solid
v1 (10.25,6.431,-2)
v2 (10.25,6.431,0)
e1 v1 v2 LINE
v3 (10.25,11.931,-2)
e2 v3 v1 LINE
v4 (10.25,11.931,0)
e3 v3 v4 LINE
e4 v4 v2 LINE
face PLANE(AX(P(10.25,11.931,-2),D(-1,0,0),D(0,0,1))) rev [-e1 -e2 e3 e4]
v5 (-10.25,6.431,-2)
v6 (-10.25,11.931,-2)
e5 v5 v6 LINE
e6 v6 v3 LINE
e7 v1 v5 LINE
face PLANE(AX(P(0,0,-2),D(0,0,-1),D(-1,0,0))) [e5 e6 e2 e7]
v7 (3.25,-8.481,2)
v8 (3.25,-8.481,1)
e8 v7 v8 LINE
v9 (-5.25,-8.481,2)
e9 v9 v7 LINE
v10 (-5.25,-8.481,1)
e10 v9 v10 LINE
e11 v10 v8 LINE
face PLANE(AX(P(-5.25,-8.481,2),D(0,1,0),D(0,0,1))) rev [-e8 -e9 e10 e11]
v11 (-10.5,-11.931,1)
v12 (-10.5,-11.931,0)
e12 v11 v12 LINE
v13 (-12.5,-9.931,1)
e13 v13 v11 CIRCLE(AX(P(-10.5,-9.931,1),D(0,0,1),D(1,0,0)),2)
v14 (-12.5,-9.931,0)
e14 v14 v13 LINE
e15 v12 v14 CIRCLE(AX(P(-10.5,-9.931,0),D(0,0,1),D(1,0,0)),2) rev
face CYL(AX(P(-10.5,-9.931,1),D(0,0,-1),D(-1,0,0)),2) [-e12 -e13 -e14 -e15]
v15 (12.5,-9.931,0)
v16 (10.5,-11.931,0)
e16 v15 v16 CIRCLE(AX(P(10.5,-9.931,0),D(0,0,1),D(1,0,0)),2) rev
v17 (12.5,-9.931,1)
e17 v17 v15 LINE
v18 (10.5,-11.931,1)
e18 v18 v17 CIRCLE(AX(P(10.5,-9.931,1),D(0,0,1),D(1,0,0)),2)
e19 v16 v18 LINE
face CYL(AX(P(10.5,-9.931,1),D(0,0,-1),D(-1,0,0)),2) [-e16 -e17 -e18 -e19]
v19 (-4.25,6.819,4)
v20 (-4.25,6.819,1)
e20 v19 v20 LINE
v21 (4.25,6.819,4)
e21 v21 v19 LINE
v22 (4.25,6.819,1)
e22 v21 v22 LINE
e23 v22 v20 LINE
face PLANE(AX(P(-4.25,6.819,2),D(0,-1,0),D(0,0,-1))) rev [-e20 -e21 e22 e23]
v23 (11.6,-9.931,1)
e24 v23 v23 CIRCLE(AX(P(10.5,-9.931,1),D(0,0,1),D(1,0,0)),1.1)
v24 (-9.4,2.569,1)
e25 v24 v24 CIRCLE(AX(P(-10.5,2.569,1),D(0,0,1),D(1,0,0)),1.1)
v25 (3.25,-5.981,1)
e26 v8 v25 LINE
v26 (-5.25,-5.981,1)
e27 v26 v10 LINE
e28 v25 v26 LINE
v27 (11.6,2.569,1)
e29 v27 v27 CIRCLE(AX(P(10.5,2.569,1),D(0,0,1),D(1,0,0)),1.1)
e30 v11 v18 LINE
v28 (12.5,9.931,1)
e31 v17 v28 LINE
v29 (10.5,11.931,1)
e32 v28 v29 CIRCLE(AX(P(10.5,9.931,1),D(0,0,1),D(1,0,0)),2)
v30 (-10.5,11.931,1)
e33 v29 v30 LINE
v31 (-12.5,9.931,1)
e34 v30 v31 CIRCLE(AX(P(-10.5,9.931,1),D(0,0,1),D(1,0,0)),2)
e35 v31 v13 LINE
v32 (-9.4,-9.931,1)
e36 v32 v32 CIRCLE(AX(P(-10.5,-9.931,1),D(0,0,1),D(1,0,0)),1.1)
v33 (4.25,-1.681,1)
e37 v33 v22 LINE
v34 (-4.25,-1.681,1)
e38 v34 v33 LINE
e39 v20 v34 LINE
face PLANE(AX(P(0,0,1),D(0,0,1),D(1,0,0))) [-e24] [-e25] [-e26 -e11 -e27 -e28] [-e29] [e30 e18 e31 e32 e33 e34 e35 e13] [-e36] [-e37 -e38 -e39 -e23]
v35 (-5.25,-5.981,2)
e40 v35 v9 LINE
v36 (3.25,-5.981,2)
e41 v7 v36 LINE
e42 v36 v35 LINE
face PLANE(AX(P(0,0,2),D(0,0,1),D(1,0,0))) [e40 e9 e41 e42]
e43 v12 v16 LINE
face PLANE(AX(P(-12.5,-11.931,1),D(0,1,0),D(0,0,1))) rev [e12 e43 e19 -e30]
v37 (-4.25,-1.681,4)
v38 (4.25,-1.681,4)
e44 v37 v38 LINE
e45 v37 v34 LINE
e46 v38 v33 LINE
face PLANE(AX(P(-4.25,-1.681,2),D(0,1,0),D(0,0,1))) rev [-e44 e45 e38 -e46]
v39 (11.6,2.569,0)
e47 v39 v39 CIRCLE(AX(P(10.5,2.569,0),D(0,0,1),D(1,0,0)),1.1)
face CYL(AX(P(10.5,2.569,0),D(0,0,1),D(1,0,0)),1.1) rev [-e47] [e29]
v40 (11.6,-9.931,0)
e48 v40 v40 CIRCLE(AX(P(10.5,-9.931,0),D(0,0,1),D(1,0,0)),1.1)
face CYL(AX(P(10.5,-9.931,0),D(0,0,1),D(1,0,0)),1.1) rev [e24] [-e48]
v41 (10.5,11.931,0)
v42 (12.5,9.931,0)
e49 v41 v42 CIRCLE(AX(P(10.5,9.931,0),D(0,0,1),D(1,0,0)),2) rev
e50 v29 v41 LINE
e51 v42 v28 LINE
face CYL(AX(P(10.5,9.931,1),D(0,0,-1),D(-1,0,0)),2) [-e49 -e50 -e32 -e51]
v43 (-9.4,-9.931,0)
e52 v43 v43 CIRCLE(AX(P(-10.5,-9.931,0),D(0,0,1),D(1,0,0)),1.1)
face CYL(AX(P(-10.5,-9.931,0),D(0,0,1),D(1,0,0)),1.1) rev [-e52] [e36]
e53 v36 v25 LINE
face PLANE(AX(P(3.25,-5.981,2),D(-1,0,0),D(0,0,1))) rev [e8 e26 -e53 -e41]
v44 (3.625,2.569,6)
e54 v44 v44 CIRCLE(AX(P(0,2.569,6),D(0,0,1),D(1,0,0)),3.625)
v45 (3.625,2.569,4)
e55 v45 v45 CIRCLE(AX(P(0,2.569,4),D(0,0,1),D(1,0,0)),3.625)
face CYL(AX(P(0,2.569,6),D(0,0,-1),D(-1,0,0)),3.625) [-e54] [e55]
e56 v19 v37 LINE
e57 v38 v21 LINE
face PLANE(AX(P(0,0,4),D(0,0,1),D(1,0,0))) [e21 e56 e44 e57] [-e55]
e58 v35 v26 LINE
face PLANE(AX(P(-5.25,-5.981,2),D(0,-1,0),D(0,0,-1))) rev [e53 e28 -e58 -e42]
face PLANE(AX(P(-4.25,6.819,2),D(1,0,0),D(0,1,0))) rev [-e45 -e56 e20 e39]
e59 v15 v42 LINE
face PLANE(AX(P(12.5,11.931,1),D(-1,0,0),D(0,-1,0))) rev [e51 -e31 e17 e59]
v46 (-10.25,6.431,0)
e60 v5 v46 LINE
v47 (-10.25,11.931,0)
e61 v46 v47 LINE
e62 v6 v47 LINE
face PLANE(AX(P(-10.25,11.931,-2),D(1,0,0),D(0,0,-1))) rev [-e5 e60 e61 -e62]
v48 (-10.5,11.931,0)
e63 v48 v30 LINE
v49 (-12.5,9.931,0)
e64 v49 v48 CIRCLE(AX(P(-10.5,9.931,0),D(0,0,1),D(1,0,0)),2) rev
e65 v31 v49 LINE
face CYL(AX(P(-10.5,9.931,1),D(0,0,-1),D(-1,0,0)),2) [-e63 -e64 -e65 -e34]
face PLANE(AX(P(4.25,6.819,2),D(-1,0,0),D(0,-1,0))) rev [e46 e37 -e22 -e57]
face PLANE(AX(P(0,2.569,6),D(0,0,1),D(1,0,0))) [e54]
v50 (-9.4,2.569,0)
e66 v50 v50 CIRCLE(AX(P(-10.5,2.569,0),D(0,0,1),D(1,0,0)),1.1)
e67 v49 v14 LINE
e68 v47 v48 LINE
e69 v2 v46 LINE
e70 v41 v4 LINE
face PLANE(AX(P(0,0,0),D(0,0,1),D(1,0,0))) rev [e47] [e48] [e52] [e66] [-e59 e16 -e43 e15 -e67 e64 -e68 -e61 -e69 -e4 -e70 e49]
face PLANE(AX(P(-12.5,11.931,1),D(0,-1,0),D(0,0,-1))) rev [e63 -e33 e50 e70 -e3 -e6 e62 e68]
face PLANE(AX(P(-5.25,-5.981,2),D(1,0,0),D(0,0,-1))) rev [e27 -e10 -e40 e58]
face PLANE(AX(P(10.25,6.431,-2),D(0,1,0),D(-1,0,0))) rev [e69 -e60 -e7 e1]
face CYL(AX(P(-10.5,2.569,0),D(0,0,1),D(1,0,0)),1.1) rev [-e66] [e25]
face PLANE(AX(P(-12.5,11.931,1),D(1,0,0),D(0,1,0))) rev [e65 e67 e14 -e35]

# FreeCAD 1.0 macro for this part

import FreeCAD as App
import Part
import Sketcher
from FreeCAD import Vector


def edges_at(feature, points):
    """Names of the edges that pass closest to the given points."""
    edges = feature.Shape.Edges
    near = lambda p: min(range(len(edges)), key=lambda i: edges[i].distToShape(Part.Vertex(*p))[0])
    return sorted({f"Edge{near(p) + 1}" for p in points})


def add_polygon(sketch, points):
    """Adds a closed chain of lines whose ends are joined by coincident constraints."""
    first, n = sketch.GeometryCount, len(points)
    for a, b in zip(points, points[1:] + points[:1]):
        sketch.addGeometry(Part.LineSegment(App.Vector(*a, 0), App.Vector(*b, 0)), False)
    for i in range(n):
        sketch.addConstraint(Sketcher.Constraint("Coincident", first + i, 2, first + (i + 1) % n, 1))

doc = App.newDocument("Part")
body = doc.addObject("PartDesign::Body", "Body")

# Sketch on XY plane
sketch1 = body.newObject("Sketcher::SketchObject", "Sketch")
sketch1.AttachmentSupport = (doc.getObject("XY_Plane"), [""])
sketch1.MapMode = "FlatFace"
add_polygon(sketch1, [(-12.5, 11.931), (-12.5, -11.931), (12.5, -11.931), (12.5, 11.931)])  # lines 0-3
sketch1.addConstraint(Sketcher.Constraint("Vertical", 0))
sketch1.addConstraint(Sketcher.Constraint("Horizontal", 1))
sketch1.addConstraint(Sketcher.Constraint("Vertical", 2))
sketch1.addConstraint(Sketcher.Constraint("Horizontal", 3))
sketch1.addConstraint(Sketcher.Constraint("Symmetric", 0, 2, 2, 2, -1, 1))
sketch1.addConstraint(Sketcher.Constraint("DistanceX", 1, 1, 1, 2, 25.0))
sketch1.addConstraint(Sketcher.Constraint("DistanceY", 0, 2, 0, 1, 23.862))
pad1 = body.newObject("PartDesign::Pad", "Pad")
pad1.Profile = sketch1
pad1.Length = 1
doc.recompute()

fillet = body.newObject("PartDesign::Fillet", "Fillet")
fillet.Base = (pad1, edges_at(pad1, [
    (12.5, -11.931, 0.5),
    (-12.5, -11.931, 0.5),
    (-12.5, 11.931, 0.5),
    (12.5, 11.931, 0.5),
]))
fillet.Radius = 2

# Sketch on XY plane
sketch2 = body.newObject("Sketcher::SketchObject", "Sketch001")
sketch2.AttachmentSupport = (doc.getObject("XY_Plane"), [""])
sketch2.MapMode = "FlatFace"
sketch2.AttachmentOffset = App.Placement(Vector(0, 0, 1), App.Rotation())
sketch2.addGeometry(Part.Circle(Vector(-10.5, -9.931, 0), Vector(0, 0, 1), 1.1), False)
sketch2.addGeometry(Part.Circle(Vector(10.5, -9.931, 0), Vector(0, 0, 1), 1.1), False)
sketch2.addGeometry(Part.Circle(Vector(10.5, 2.569, 0), Vector(0, 0, 1), 1.1), False)
sketch2.addGeometry(Part.Circle(Vector(-10.5, 2.569, 0), Vector(0, 0, 1), 1.1), False)
sketch2.addConstraint(Sketcher.Constraint("Equal", 0, 1))
sketch2.addConstraint(Sketcher.Constraint("Equal", 1, 2))
sketch2.addConstraint(Sketcher.Constraint("Equal", 2, 3))
sketch2.addConstraint(Sketcher.Constraint("Symmetric", 0, 3, 1, 3, -2))
sketch2.addConstraint(Sketcher.Constraint("Symmetric", 2, 3, 3, 3, -2))
sketch2.addConstraint(Sketcher.Constraint("Vertical", 1, 3, 2, 3))
sketch2.addConstraint(Sketcher.Constraint("Diameter", 0, 2.2))
sketch2.addConstraint(Sketcher.Constraint("DistanceX", 0, 3, 1, 3, 21.0))
sketch2.addConstraint(Sketcher.Constraint("DistanceY", 1, 3, 2, 3, 12.5))
sketch2.addConstraint(Sketcher.Constraint("DistanceY", 0, 3, -1, 1, 9.931))
pocket1 = body.newObject("PartDesign::Pocket", "Pocket")
pocket1.Profile = sketch2
pocket1.Length = 1

# Sketch on XY plane
sketch3 = body.newObject("Sketcher::SketchObject", "Sketch002")
sketch3.AttachmentSupport = (doc.getObject("XY_Plane"), [""])
sketch3.MapMode = "FlatFace"
sketch3.AttachmentOffset = App.Placement(Vector(0, 0, 1), App.Rotation())
add_polygon(sketch3, [(-5.25, -5.981), (-5.25, -8.481), (3.25, -8.481), (3.25, -5.981)])  # lines 0-3
add_polygon(sketch3, [(-4.25, 6.819), (-4.25, -1.681), (4.25, -1.681), (4.25, 6.819)])  # lines 4-7
sketch3.addConstraint(Sketcher.Constraint("Vertical", 0))
sketch3.addConstraint(Sketcher.Constraint("Horizontal", 1))
sketch3.addConstraint(Sketcher.Constraint("Vertical", 2))
sketch3.addConstraint(Sketcher.Constraint("Horizontal", 3))
sketch3.addConstraint(Sketcher.Constraint("Vertical", 4))
sketch3.addConstraint(Sketcher.Constraint("Horizontal", 5))
sketch3.addConstraint(Sketcher.Constraint("Vertical", 6))
sketch3.addConstraint(Sketcher.Constraint("Horizontal", 7))
sketch3.addConstraint(Sketcher.Constraint("Equal", 3, 5))
sketch3.addConstraint(Sketcher.Constraint("Equal", 7, 4))
sketch3.addConstraint(Sketcher.Constraint("DistanceX", 1, 1, 1, 2, 8.5))
sketch3.addConstraint(Sketcher.Constraint("DistanceY", 0, 2, 0, 1, 2.5))
sketch3.addConstraint(Sketcher.Constraint("DistanceX", 3, 2, 4, 2, 1.0))
sketch3.addConstraint(Sketcher.Constraint("DistanceY", 3, 2, 4, 2, 4.3))
sketch3.addConstraint(Sketcher.Constraint("DistanceX", 0, 2, -1, 1, 5.25))
sketch3.addConstraint(Sketcher.Constraint("DistanceY", 0, 2, -1, 1, 8.481))
pad2 = body.newObject("PartDesign::Pad", "Pad001")
pad2.Profile = sketch3
pad2.Length = 1

# Sketch on XY plane
sketch4 = body.newObject("Sketcher::SketchObject", "Sketch003")
sketch4.AttachmentSupport = (doc.getObject("XY_Plane"), [""])
sketch4.MapMode = "FlatFace"
sketch4.AttachmentOffset = App.Placement(Vector(0, 0, 2), App.Rotation())
add_polygon(sketch4, [(-4.25, 6.819), (-4.25, -1.681), (4.25, -1.681), (4.25, 6.819)])  # lines 0-3
sketch4.addConstraint(Sketcher.Constraint("Vertical", 0))
sketch4.addConstraint(Sketcher.Constraint("Horizontal", 1))
sketch4.addConstraint(Sketcher.Constraint("Vertical", 2))
sketch4.addConstraint(Sketcher.Constraint("Horizontal", 3))
sketch4.addConstraint(Sketcher.Constraint("Equal", 3, 0))
sketch4.addConstraint(Sketcher.Constraint("DistanceX", 1, 1, 1, 2, 8.5))
sketch4.addConstraint(Sketcher.Constraint("DistanceX", 0, 2, -1, 1, 4.25))
sketch4.addConstraint(Sketcher.Constraint("DistanceY", 0, 2, -1, 1, 1.681))
pad3 = body.newObject("PartDesign::Pad", "Pad002")
pad3.Profile = sketch4
pad3.Length = 2

# Sketch on XY plane
sketch5 = body.newObject("Sketcher::SketchObject", "Sketch004")
sketch5.AttachmentSupport = (doc.getObject("XY_Plane"), [""])
sketch5.MapMode = "FlatFace"
sketch5.AttachmentOffset = App.Placement(Vector(0, 0, 4), App.Rotation())
sketch5.addGeometry(Part.Circle(Vector(0, 2.569, 0), Vector(0, 0, 1), 3.625), False)
sketch5.addConstraint(Sketcher.Constraint("PointOnObject", 0, 3, -2))
sketch5.addConstraint(Sketcher.Constraint("Diameter", 0, 7.25))
sketch5.addConstraint(Sketcher.Constraint("DistanceY", -1, 1, 0, 3, 2.569))
pad4 = body.newObject("PartDesign::Pad", "Pad003")
pad4.Profile = sketch5
pad4.Length = 2

# Sketch on XY plane
sketch6 = body.newObject("Sketcher::SketchObject", "Sketch005")
sketch6.AttachmentSupport = (doc.getObject("XY_Plane"), [""])
sketch6.MapMode = "FlatFace"
add_polygon(sketch6, [(10.25, 11.931), (10.25, 6.431), (-10.25, 6.431), (-10.25, 11.931)])  # lines 0-3
sketch6.addConstraint(Sketcher.Constraint("Vertical", 0))
sketch6.addConstraint(Sketcher.Constraint("Horizontal", 1))
sketch6.addConstraint(Sketcher.Constraint("Vertical", 2))
sketch6.addConstraint(Sketcher.Constraint("Horizontal", 3))
sketch6.addConstraint(Sketcher.Constraint("DistanceX", 1, 2, 1, 1, 20.5))
sketch6.addConstraint(Sketcher.Constraint("DistanceY", 0, 2, 0, 1, 5.5))
sketch6.addConstraint(Sketcher.Constraint("DistanceX", -1, 1, 0, 2, 10.25))
sketch6.addConstraint(Sketcher.Constraint("DistanceY", -1, 1, 0, 2, 6.431))
pad5 = body.newObject("PartDesign::Pad", "Pad004")
pad5.Profile = sketch6
pad5.Length = 2
pad5.Reversed = True

doc.recompute()
